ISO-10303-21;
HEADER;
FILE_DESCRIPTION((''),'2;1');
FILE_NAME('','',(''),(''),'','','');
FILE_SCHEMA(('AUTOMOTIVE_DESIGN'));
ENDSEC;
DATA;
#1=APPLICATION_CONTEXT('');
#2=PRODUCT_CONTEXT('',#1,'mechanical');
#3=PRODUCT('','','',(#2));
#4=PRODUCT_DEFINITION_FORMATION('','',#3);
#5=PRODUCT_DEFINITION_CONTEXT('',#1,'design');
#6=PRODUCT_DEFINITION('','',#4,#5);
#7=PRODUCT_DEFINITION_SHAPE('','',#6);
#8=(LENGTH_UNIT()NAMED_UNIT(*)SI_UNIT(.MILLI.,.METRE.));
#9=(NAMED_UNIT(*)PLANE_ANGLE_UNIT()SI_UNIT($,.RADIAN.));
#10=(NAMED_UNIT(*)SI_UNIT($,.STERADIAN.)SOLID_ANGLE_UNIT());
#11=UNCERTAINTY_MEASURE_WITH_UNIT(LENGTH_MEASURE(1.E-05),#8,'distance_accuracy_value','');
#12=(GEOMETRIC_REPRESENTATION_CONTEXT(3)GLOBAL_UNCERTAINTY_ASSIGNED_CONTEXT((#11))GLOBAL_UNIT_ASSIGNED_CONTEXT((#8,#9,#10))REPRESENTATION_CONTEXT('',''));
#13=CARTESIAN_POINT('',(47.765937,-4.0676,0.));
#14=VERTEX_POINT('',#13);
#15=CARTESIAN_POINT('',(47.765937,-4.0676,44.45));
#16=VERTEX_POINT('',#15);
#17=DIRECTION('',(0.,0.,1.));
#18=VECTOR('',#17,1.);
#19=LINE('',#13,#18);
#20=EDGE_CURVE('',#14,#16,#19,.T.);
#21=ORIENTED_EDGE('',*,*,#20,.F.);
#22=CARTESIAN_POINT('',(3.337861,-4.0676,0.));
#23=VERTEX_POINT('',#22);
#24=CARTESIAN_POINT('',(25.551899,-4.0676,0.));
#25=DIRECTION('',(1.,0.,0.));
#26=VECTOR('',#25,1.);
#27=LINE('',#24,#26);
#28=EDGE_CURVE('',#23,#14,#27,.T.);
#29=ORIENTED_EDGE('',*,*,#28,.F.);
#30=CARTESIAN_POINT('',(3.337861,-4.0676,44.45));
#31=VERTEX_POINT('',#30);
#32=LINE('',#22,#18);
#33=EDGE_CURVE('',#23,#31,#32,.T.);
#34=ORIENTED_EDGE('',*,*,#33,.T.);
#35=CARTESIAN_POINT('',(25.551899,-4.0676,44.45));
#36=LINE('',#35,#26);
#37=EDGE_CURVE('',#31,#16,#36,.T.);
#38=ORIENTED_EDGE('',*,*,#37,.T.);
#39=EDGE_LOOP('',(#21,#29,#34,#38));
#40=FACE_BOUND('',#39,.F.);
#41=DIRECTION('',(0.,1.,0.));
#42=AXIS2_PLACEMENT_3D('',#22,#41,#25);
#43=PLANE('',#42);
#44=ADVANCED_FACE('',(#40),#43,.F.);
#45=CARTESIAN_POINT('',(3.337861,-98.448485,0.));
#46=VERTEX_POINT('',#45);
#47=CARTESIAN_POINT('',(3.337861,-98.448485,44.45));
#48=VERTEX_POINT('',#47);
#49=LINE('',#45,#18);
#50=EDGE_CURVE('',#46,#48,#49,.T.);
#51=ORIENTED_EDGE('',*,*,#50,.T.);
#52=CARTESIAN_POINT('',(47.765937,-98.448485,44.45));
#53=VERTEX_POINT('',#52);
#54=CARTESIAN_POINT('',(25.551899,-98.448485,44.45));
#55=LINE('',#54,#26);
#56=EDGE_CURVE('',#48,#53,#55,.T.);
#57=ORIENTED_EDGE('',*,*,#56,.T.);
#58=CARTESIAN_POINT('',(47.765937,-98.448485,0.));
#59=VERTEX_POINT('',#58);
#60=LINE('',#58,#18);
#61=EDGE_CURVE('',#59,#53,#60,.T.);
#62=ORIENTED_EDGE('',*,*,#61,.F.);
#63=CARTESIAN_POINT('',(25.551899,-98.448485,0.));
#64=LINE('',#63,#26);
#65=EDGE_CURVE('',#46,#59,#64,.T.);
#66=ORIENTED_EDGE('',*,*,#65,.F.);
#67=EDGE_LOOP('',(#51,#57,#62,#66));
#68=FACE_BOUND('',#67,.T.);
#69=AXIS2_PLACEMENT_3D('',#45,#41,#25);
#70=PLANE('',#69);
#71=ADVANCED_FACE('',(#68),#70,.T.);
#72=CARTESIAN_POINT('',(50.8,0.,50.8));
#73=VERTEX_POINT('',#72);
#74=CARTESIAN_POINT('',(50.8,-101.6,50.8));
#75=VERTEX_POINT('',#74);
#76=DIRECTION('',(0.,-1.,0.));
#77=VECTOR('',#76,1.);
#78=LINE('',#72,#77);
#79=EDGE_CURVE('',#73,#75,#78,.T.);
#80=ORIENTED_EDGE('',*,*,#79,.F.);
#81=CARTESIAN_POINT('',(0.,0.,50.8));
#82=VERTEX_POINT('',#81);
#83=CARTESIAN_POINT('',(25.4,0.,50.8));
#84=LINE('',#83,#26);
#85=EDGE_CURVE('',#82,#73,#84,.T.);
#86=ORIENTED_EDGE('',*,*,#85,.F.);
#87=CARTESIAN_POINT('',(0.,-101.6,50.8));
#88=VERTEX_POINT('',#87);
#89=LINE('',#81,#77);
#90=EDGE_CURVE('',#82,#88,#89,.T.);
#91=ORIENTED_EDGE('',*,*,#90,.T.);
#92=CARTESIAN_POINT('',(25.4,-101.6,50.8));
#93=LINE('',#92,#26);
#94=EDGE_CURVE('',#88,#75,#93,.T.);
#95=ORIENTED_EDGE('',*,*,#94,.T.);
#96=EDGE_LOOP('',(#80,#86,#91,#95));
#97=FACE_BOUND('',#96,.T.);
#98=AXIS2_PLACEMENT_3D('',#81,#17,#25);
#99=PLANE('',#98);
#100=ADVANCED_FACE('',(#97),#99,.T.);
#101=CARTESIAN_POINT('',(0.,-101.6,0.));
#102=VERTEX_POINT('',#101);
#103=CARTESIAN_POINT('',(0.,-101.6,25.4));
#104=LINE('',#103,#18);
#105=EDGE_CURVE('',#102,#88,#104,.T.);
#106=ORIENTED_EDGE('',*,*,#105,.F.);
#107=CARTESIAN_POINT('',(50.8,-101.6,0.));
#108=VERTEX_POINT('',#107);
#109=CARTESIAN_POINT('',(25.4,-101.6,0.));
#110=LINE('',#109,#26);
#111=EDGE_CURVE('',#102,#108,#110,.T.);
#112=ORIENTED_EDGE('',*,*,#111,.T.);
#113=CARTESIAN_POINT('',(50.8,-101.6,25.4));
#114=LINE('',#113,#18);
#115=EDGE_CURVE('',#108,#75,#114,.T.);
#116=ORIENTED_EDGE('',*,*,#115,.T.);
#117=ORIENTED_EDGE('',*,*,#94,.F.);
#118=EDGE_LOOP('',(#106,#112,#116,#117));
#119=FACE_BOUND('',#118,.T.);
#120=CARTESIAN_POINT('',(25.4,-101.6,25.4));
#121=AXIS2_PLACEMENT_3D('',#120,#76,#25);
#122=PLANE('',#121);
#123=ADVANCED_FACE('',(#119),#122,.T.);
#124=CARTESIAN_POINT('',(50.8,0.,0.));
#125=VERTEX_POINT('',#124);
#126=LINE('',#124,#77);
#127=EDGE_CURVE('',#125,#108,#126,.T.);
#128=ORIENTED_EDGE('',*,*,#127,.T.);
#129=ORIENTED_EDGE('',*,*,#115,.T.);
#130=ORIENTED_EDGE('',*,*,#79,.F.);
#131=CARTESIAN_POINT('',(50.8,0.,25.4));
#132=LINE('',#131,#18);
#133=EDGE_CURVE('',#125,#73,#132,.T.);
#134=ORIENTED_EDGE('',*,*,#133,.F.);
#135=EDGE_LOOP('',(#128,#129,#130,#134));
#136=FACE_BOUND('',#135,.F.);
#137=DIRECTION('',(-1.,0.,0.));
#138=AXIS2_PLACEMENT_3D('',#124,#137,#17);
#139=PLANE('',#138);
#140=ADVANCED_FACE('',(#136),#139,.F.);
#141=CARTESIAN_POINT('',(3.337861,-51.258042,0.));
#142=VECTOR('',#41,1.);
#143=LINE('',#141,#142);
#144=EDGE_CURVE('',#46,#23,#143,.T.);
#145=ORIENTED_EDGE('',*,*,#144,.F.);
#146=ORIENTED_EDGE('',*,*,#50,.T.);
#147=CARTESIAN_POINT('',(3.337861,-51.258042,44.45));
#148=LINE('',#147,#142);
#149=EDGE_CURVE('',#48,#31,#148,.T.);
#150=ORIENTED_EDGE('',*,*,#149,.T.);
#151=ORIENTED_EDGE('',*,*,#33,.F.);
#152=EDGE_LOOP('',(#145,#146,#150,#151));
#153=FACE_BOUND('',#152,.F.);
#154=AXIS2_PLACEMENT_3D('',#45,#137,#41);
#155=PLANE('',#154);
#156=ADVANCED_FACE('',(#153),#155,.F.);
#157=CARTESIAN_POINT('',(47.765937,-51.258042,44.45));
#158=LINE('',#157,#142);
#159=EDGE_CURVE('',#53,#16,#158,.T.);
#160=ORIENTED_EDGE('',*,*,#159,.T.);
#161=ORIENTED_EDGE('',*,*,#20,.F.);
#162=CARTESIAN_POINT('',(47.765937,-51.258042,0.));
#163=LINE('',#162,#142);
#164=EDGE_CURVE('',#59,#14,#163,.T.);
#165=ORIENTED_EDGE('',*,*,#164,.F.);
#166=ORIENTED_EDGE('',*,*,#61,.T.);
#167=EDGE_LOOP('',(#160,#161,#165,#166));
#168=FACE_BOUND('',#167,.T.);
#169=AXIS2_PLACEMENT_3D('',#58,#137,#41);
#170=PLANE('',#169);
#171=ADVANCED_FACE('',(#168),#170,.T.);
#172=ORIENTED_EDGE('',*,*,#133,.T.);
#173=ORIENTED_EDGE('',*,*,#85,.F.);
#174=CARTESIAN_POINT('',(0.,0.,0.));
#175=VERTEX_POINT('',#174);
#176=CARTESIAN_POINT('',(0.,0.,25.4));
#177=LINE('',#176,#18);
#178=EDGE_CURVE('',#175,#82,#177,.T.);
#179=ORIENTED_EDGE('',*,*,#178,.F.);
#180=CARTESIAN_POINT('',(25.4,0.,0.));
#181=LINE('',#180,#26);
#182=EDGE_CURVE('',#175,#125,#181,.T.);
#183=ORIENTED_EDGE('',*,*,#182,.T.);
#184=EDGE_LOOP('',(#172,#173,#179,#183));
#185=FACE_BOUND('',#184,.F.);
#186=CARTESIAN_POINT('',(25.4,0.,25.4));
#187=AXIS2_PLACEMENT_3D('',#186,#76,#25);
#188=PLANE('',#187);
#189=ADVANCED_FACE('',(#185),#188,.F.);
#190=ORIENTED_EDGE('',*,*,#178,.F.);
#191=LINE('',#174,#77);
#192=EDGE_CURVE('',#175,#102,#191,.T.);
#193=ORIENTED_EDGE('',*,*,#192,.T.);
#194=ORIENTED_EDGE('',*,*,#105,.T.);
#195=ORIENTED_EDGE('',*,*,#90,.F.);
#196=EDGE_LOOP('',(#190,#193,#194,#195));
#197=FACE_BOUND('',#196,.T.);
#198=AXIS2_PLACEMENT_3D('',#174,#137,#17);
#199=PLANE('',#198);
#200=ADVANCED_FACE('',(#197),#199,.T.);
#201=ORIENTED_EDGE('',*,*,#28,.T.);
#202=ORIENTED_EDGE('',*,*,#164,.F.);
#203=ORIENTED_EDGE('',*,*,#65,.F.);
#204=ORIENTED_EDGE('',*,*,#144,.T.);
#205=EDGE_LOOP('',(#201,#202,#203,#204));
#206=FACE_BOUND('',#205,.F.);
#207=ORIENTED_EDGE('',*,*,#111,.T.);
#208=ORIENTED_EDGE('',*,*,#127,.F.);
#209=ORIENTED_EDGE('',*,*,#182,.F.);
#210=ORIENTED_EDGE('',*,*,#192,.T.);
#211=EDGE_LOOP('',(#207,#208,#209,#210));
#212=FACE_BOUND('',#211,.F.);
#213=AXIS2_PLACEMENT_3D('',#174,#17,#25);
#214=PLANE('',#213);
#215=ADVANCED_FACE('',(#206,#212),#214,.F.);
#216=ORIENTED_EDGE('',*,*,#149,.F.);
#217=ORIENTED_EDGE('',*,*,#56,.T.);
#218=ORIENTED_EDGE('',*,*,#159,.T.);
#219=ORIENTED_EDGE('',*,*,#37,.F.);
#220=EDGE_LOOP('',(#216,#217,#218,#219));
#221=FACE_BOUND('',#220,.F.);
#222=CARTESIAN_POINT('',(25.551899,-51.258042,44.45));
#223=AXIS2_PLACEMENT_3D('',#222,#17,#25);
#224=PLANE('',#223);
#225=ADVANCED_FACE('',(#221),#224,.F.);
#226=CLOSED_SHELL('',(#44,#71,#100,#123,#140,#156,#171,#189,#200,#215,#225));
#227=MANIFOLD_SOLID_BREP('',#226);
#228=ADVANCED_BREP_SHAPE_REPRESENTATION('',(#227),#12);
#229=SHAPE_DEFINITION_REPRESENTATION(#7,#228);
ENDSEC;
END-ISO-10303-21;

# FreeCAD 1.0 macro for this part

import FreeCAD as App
import Part
import Sketcher
from FreeCAD import Vector
Q = App.Units.Quantity


def add_polygon(sketch, points):
    """Adds a closed chain of lines whose ends are joined by coincident constraints."""
    first, n = sketch.GeometryCount, len(points)
    for a, b in zip(points, points[1:] + points[:1]):
        sketch.addGeometry(Part.LineSegment(App.Vector(*a, 0), App.Vector(*b, 0)), False)
    for i in range(n):
        sketch.addConstraint(Sketcher.Constraint("Coincident", first + i, 2, first + (i + 1) % n, 1))

doc = App.newDocument("Part")
body = doc.addObject("PartDesign::Body", "Body")

# Sketch on XZ plane
sketch1 = body.newObject("Sketcher::SketchObject", "Sketch")
sketch1.AttachmentSupport = (doc.getObject("XZ_Plane"), [""])
sketch1.MapMode = "FlatFace"
add_polygon(sketch1, [(0, 51), (0, 0), (51, 0), (51, 51)])  # lines 0-3
sketch1.addConstraint([
    Sketcher.Constraint("Vertical", 0),
    Sketcher.Constraint("Horizontal", 1),
    Sketcher.Constraint("Vertical", 2),
    Sketcher.Constraint("Horizontal", 3),
    Sketcher.Constraint("Coincident", 0, 2, -1, 1),
    Sketcher.Constraint("Equal", 3, 0),
    Sketcher.Constraint("DistanceX", 1, 1, 1, 2, Q("2 in")),
])
pad1 = body.newObject("PartDesign::Pad", "Pad")
pad1.Profile = sketch1
pad1.Length = Q("4 in")

# Sketch on XY plane
sketch2 = body.newObject("Sketcher::SketchObject", "Sketch001")
sketch2.AttachmentSupport = (doc.getObject("XY_Plane"), [""])
sketch2.MapMode = "FlatFace"
add_polygon(sketch2, [(3, -4), (3, -98), (48, -98), (48, -4)])  # lines 0-3
sketch2.addConstraint([
    Sketcher.Constraint("Vertical", 0),
    Sketcher.Constraint("Horizontal", 1),
    Sketcher.Constraint("Vertical", 2),
    Sketcher.Constraint("Horizontal", 3),
    Sketcher.Constraint("DistanceY", 2, 2, -1, 1, Q("4.0676 mm")),
    Sketcher.Constraint("DistanceX", 1, 1, 1, 2, Q("44.428077 mm")),
    Sketcher.Constraint("DistanceY", 0, 2, 0, 1, Q("94.380885 mm")),
    Sketcher.Constraint("DistanceX", -1, 1, 0, 2, Q("3.337861 mm")),
])
pocket1 = body.newObject("PartDesign::Pocket", "Pocket")
pocket1.Profile = sketch2
pocket1.Length = Q("1.75 in")
pocket1.Reversed = True

doc.recompute()
